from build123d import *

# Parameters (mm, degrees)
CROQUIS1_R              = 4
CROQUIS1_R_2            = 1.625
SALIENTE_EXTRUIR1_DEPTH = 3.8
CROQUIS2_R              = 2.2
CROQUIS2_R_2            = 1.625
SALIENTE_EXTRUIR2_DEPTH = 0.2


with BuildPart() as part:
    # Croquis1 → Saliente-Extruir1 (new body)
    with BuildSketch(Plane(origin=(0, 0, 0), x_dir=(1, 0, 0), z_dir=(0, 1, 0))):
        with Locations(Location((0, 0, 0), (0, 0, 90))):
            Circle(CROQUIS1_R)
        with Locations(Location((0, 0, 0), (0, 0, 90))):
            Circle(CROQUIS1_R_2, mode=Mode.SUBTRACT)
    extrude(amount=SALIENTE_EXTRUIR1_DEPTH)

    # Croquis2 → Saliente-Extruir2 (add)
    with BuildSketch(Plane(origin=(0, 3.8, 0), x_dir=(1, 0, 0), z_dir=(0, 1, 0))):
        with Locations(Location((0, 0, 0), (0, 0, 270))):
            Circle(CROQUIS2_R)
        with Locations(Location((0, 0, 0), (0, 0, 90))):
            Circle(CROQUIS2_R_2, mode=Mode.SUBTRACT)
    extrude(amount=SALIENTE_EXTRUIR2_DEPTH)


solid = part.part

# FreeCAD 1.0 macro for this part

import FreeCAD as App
import Part
import Sketcher

V = App.Vector

doc = App.newDocument("Part")
body = doc.addObject("PartDesign::Body", "Body")

# Sketch on XZ plane
sketch1 = doc.addObject("Sketcher::SketchObject", "Sketch")
body.addObject(sketch1)
sketch1.AttachmentSupport = (doc.XZ_Plane, [""])
sketch1.MapMode = "FlatFace"
sketch1.addGeometry(Part.Circle(V(0, 0, 0), V(0, 0, 1), 4), False)
sketch1.addGeometry(Part.Circle(V(0, 0, 0), V(0, 0, 1), 1.6), False)
sketch1.addConstraint(Sketcher.Constraint("Coincident", 0, 3, -1, 1))
sketch1.addConstraint(Sketcher.Constraint("Coincident", 1, 3, -1, 1))
sketch1.addConstraint(Sketcher.Constraint("Diameter", 0, 8.0))
sketch1.addConstraint(Sketcher.Constraint("Diameter", 1, 3.25))
pad1 = doc.addObject("PartDesign::Pad", "Pad")
body.addObject(pad1)
pad1.Profile = sketch1
pad1.Length = 3.8
pad1.Reversed = True

# Sketch on XZ plane
sketch2 = doc.addObject("Sketcher::SketchObject", "Sketch001")
body.addObject(sketch2)
sketch2.AttachmentSupport = (doc.XZ_Plane, [""])
sketch2.MapMode = "FlatFace"
sketch2.AttachmentOffset = App.Placement(V(0, 0, -3.8), App.Rotation())
sketch2.addGeometry(Part.Circle(V(0, 0, 0), V(0, 0, 1), 2.2), False)
sketch2.addGeometry(Part.Circle(V(0, 0, 0), V(0, 0, 1), 1.6), False)
sketch2.addConstraint(Sketcher.Constraint("Coincident", 0, 3, -1, 1))
sketch2.addConstraint(Sketcher.Constraint("Coincident", 1, 3, -1, 1))
sketch2.addConstraint(Sketcher.Constraint("Diameter", 0, 4.4))
sketch2.addConstraint(Sketcher.Constraint("Diameter", 1, 3.25))
pad2 = doc.addObject("PartDesign::Pad", "Pad001")
body.addObject(pad2)
pad2.Profile = sketch2
pad2.Length = 0.2
pad2.Reversed = True

doc.recompute()
